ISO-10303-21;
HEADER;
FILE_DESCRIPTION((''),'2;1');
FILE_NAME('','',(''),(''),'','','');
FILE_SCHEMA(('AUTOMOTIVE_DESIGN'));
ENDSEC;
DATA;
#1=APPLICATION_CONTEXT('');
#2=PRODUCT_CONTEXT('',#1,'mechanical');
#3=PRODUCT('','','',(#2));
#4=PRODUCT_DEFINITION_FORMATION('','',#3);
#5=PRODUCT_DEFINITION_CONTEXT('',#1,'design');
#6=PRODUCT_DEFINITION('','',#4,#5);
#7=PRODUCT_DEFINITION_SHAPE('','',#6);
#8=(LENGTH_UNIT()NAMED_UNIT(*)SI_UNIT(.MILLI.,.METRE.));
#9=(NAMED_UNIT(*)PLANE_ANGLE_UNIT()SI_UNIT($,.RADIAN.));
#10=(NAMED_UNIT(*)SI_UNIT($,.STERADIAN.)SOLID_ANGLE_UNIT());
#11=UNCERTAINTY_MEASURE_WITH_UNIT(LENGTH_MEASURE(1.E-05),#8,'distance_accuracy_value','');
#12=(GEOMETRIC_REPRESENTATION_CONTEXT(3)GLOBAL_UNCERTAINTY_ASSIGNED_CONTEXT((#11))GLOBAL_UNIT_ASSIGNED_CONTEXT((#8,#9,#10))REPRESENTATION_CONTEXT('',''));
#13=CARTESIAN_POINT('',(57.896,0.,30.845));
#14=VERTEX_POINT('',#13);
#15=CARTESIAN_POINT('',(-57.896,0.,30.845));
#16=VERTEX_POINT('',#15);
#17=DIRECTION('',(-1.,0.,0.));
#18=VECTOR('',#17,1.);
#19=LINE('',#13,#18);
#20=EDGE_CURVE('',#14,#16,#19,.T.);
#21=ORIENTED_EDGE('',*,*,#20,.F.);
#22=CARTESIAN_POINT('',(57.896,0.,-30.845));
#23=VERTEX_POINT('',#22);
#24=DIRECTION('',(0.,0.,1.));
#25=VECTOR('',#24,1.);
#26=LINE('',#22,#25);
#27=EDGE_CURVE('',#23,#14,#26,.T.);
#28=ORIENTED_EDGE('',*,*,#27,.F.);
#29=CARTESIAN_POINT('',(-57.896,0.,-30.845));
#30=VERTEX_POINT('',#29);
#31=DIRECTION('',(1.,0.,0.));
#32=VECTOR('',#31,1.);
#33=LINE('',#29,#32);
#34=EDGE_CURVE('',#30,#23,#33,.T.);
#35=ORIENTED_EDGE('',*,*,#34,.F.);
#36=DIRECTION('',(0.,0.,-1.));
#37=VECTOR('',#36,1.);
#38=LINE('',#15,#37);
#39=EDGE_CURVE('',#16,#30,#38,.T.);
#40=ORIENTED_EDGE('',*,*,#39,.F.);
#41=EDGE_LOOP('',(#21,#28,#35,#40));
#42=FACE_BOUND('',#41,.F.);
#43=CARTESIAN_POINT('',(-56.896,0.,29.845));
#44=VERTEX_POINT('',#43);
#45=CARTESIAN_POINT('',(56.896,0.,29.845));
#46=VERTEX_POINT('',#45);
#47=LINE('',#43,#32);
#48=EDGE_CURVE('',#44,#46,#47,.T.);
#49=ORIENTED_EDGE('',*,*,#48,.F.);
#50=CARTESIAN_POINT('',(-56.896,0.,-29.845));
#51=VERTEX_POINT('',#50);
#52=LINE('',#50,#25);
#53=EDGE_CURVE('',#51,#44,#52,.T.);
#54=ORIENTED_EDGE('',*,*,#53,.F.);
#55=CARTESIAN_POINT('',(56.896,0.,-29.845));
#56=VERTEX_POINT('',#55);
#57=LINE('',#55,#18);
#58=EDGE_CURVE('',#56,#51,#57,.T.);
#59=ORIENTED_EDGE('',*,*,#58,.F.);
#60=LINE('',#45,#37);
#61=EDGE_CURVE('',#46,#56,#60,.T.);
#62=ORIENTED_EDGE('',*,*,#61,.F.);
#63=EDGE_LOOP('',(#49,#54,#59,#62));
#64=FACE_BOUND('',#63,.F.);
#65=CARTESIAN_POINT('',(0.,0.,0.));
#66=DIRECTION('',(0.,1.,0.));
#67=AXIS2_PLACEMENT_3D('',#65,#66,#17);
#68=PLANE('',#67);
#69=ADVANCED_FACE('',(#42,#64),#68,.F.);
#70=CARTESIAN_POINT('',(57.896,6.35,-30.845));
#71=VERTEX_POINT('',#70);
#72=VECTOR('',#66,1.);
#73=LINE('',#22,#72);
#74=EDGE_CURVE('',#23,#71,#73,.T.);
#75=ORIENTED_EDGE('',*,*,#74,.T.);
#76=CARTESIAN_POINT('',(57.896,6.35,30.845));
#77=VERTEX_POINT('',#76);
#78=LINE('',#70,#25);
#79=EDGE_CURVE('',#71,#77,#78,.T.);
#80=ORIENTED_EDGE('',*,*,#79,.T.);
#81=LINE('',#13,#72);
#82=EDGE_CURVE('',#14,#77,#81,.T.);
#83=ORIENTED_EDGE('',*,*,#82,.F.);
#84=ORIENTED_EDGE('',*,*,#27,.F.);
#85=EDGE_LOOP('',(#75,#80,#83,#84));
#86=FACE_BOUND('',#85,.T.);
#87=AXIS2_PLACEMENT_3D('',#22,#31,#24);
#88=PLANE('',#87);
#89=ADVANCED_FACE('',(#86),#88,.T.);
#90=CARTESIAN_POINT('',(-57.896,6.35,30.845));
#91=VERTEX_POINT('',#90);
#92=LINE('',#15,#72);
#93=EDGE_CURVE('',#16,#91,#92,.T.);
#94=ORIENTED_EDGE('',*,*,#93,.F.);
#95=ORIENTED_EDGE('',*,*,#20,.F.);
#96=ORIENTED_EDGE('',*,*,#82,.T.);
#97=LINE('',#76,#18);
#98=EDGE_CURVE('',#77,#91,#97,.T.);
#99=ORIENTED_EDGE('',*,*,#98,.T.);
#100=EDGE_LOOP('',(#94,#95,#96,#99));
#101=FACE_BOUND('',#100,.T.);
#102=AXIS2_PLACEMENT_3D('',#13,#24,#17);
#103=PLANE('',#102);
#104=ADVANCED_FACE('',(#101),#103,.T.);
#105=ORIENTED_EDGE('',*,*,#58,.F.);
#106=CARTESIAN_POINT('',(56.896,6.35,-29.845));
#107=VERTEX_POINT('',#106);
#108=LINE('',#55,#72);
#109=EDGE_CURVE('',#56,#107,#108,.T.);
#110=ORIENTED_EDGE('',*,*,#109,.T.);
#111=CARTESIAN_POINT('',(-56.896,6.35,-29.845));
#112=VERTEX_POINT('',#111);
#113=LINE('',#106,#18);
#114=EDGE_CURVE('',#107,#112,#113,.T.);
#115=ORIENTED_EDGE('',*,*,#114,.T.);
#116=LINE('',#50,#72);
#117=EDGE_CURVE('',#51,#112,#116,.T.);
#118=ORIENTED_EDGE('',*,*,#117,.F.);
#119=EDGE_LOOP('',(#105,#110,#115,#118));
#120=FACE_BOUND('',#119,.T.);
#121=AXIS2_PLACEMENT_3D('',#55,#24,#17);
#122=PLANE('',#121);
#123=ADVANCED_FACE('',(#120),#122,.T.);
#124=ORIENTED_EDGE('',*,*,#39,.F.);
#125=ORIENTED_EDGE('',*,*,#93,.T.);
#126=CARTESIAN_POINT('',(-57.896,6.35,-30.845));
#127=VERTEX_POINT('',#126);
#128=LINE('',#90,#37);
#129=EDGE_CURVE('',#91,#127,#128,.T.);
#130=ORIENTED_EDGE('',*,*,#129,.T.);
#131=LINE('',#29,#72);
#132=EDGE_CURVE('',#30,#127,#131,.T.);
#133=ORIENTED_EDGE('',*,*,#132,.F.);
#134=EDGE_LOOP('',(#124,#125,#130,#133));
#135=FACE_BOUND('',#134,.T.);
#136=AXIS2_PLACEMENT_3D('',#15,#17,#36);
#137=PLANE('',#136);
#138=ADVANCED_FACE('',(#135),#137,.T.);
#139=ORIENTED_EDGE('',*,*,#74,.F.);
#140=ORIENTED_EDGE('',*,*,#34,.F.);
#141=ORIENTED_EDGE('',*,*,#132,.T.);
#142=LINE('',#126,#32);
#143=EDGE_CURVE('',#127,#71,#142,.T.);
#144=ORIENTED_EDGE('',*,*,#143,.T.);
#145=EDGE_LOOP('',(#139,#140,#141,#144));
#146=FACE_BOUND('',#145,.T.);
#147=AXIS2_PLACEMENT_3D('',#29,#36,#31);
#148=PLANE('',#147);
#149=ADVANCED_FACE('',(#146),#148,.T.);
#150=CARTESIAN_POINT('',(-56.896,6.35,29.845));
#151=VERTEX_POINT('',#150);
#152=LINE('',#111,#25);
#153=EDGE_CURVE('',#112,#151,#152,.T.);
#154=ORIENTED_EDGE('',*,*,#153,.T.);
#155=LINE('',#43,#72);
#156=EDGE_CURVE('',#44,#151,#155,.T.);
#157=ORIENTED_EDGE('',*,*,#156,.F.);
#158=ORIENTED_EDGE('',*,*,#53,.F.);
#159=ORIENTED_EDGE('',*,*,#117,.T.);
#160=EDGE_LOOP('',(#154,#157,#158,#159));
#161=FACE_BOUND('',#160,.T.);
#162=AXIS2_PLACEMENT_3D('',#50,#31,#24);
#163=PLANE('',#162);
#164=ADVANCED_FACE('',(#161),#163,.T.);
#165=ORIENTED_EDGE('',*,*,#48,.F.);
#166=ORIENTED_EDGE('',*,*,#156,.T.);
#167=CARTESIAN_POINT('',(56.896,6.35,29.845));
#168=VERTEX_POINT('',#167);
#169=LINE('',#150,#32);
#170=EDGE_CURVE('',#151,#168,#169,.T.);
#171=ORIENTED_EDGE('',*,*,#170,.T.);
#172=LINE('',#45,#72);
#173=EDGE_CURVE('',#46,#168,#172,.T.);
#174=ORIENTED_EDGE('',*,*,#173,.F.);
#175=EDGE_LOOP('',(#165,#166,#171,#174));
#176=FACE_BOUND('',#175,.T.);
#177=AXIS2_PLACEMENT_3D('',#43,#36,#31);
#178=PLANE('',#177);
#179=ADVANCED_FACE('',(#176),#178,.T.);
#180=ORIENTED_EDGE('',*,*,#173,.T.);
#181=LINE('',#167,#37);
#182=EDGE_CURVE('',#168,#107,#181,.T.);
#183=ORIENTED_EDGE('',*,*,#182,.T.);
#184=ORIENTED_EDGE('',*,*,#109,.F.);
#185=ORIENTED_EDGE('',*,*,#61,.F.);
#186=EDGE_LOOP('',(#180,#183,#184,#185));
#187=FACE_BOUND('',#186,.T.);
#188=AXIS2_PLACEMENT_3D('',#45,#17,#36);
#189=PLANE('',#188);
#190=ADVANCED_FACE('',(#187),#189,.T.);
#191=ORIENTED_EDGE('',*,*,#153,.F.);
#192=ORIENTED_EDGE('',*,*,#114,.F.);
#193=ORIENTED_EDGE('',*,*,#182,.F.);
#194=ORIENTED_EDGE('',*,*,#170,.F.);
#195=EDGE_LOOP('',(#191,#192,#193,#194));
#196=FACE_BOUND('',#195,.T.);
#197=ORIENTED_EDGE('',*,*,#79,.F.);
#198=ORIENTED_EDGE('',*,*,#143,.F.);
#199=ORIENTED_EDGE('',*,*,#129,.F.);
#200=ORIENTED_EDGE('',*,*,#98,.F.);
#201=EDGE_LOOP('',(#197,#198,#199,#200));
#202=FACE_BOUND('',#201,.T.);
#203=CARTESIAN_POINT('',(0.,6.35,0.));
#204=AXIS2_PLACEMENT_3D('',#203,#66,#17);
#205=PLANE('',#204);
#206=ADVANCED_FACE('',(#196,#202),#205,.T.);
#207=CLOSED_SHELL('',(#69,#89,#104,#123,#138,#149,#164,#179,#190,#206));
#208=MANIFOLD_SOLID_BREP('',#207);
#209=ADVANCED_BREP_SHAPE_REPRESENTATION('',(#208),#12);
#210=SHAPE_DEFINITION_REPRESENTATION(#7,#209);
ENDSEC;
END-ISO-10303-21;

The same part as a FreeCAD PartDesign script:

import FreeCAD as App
import Part
import Sketcher
from FreeCAD import Vector
Q = App.Units.Quantity

doc = App.newDocument("Part")
body = doc.addObject("PartDesign::Body", "Body")

# Sketch on XZ plane
sketch1 = body.newObject("Sketcher::SketchObject", "Sketch")
sketch1.AttachmentSupport = (doc.getObject("XZ_Plane"), [""])
sketch1.MapMode = "FlatFace"
sketch1.addGeometry(Part.LineSegment(Vector(57.896, -30.845, 0), Vector(-57.896, -30.845, 0)), False)
sketch1.addGeometry(Part.LineSegment(Vector(-57.896, -30.845, 0), Vector(-57.896, 30.845, 0)), False)
sketch1.addGeometry(Part.LineSegment(Vector(-57.896, 30.845, 0), Vector(57.896, 30.845, 0)), False)
sketch1.addGeometry(Part.LineSegment(Vector(57.896, 30.845, 0), Vector(57.896, -30.845, 0)), False)
sketch1.addGeometry(Part.LineSegment(Vector(56.896, 29.845, 0), Vector(-56.896, 29.845, 0)), False)
sketch1.addGeometry(Part.LineSegment(Vector(-56.896, 29.845, 0), Vector(-56.896, -29.845, 0)), False)
sketch1.addGeometry(Part.LineSegment(Vector(-56.896, -29.845, 0), Vector(56.896, -29.845, 0)), False)
sketch1.addGeometry(Part.LineSegment(Vector(56.896, -29.845, 0), Vector(56.896, 29.845, 0)), False)
sketch1.addConstraint(Sketcher.Constraint("Coincident", 0, 2, 1, 1))
sketch1.addConstraint(Sketcher.Constraint("Coincident", 1, 2, 2, 1))
sketch1.addConstraint(Sketcher.Constraint("Coincident", 2, 2, 3, 1))
sketch1.addConstraint(Sketcher.Constraint("Coincident", 3, 2, 0, 1))
sketch1.addConstraint(Sketcher.Constraint("Coincident", 4, 2, 5, 1))
sketch1.addConstraint(Sketcher.Constraint("Coincident", 5, 2, 6, 1))
sketch1.addConstraint(Sketcher.Constraint("Coincident", 6, 2, 7, 1))
sketch1.addConstraint(Sketcher.Constraint("Coincident", 7, 2, 4, 1))
sketch1.addConstraint(Sketcher.Constraint("Horizontal", 0))
sketch1.addConstraint(Sketcher.Constraint("Vertical", 1))
sketch1.addConstraint(Sketcher.Constraint("Horizontal", 2))
sketch1.addConstraint(Sketcher.Constraint("Vertical", 3))
sketch1.addConstraint(Sketcher.Constraint("Horizontal", 4))
sketch1.addConstraint(Sketcher.Constraint("Vertical", 5))
sketch1.addConstraint(Sketcher.Constraint("Horizontal", 6))
sketch1.addConstraint(Sketcher.Constraint("Vertical", 7))
sketch1.addConstraint(Sketcher.Constraint("Symmetric", 0, 2, 2, 2, -1, 1))
sketch1.addConstraint(Sketcher.Constraint("Symmetric", 4, 2, 6, 2, -1, 1))
sketch1.addConstraint(Sketcher.Constraint("DistanceX", 4, 2, 4, 1, Q("4.48 in")))
sketch1.addConstraint(Sketcher.Constraint("DistanceY", 5, 2, 5, 1, Q("2.35 in")))
sketch1.addConstraint(Sketcher.Constraint("DistanceX", 1, 2, 4, 2, 1.0))
sketch1.addConstraint(Sketcher.Constraint("DistanceY", 4, 2, 1, 2, 1.0))
pad1 = body.newObject("PartDesign::Pad", "Pad")
pad1.Profile = sketch1
pad1.Length = Q("0.25 in")
pad1.Reversed = True

doc.recompute()
